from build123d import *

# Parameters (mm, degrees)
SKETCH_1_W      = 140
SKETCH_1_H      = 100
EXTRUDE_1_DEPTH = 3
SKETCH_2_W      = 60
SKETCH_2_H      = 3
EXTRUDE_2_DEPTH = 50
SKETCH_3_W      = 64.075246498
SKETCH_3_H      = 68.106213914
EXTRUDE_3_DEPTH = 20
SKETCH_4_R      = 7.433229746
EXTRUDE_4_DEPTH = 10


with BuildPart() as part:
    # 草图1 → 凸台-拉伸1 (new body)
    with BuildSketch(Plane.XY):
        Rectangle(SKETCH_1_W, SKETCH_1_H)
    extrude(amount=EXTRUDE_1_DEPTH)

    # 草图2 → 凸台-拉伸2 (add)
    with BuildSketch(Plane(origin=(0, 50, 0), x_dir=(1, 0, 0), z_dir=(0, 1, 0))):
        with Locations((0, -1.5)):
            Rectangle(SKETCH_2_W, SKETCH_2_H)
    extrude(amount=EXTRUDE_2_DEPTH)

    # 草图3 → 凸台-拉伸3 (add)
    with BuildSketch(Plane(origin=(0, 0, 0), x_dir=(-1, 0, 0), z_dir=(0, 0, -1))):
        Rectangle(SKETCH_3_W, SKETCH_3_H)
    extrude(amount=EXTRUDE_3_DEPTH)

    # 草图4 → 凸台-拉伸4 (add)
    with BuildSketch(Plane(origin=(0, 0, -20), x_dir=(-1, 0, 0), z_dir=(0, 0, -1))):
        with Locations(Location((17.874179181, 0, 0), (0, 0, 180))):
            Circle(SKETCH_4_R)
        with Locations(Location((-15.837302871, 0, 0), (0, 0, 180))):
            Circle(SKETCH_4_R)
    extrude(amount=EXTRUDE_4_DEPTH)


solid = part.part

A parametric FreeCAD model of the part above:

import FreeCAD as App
import Part
import Sketcher
Q = App.Units.Quantity

doc = App.newDocument("Part")
params = doc.addObject("Spreadsheet::Sheet", "Params")
for row, (alias, value) in enumerate([
    ("sketch1_width", "140 mm"),
    ("sketch1_height", "100 mm"),
    ("pad1_length", "3 mm"),
    ("sketch2_width", "60 mm"),
    ("sketch2_height", "3 mm"),
    ("pad2_length", "50 mm"),
    ("pad3_length", "20 mm"),
    ("pad4_length", "10 mm"),
], start=1):
    params.set(f"A{row}", alias)
    params.set(f"B{row}", "=" + value)
    params.setAlias(f"B{row}", alias)

body = doc.addObject("PartDesign::Body", "Body")

sketch1 = body.newObject("Sketcher::SketchObject", "Sketch")
sketch1.AttachmentSupport = (doc.getObject("XY_Plane"), [""])
sketch1.MapMode = "FlatFace"
sketch1.addGeometry(Part.LineSegment(App.Vector(-70, 50, 0), App.Vector(-70, -50, 0)), False)
sketch1.addGeometry(Part.LineSegment(App.Vector(-70, -50, 0), App.Vector(70, -50, 0)), False)
sketch1.addGeometry(Part.LineSegment(App.Vector(70, -50, 0), App.Vector(70, 50, 0)), False)
sketch1.addGeometry(Part.LineSegment(App.Vector(70, 50, 0), App.Vector(-70, 50, 0)), False)
sketch1.addConstraint(Sketcher.Constraint("Coincident", 0, 2, 1, 1))
sketch1.addConstraint(Sketcher.Constraint("Coincident", 1, 2, 2, 1))
sketch1.addConstraint(Sketcher.Constraint("Coincident", 2, 2, 3, 1))
sketch1.addConstraint(Sketcher.Constraint("Coincident", 3, 2, 0, 1))
sketch1.addConstraint(Sketcher.Constraint("Vertical", 0))
sketch1.addConstraint(Sketcher.Constraint("Horizontal", 1))
sketch1.addConstraint(Sketcher.Constraint("Vertical", 2))
sketch1.addConstraint(Sketcher.Constraint("Horizontal", 3))
sketch1.addConstraint(Sketcher.Constraint("Symmetric", 0, 2, 2, 2, -1, 1))
sketch1.addConstraint(Sketcher.Constraint("DistanceX", 1, 1, 1, 2, Q("140 mm")))
sketch1.addConstraint(Sketcher.Constraint("DistanceY", 0, 2, 0, 1, Q("100 mm")))
sketch1.setExpression("Constraints[9]", "Params.sketch1_width")
sketch1.setExpression("Constraints[10]", "Params.sketch1_height")
pad1 = body.newObject("PartDesign::Pad", "Pad")
pad1.Profile = sketch1
pad1.setExpression("Length", "Params.pad1_length")

sketch2 = body.newObject("Sketcher::SketchObject", "Sketch001")
sketch2.AttachmentSupport = (doc.getObject("XZ_Plane"), [""])
sketch2.MapMode = "FlatFace"
sketch2.AttachmentOffset = App.Placement(App.Vector(0, 0, -50), App.Rotation())
sketch2.addGeometry(Part.LineSegment(App.Vector(-30, 0, 0), App.Vector(-30, 3, 0)), False)
sketch2.addGeometry(Part.LineSegment(App.Vector(-30, 3, 0), App.Vector(30, 3, 0)), False)
sketch2.addGeometry(Part.LineSegment(App.Vector(30, 3, 0), App.Vector(30, 0, 0)), False)
sketch2.addGeometry(Part.LineSegment(App.Vector(30, 0, 0), App.Vector(-30, 0, 0)), False)
sketch2.addConstraint(Sketcher.Constraint("Coincident", 0, 2, 1, 1))
sketch2.addConstraint(Sketcher.Constraint("Coincident", 1, 2, 2, 1))
sketch2.addConstraint(Sketcher.Constraint("Coincident", 2, 2, 3, 1))
sketch2.addConstraint(Sketcher.Constraint("Coincident", 3, 2, 0, 1))
sketch2.addConstraint(Sketcher.Constraint("Vertical", 0))
sketch2.addConstraint(Sketcher.Constraint("Horizontal", 1))
sketch2.addConstraint(Sketcher.Constraint("Vertical", 2))
sketch2.addConstraint(Sketcher.Constraint("Horizontal", 3))
sketch2.addConstraint(Sketcher.Constraint("Symmetric", 2, 2, 3, 2, -1, 1))
sketch2.addConstraint(Sketcher.Constraint("DistanceX", 1, 1, 1, 2, Q("60 mm")))
sketch2.addConstraint(Sketcher.Constraint("DistanceY", 0, 1, 0, 2, Q("3 mm")))
sketch2.setExpression("Constraints[9]", "Params.sketch2_width")
sketch2.setExpression("Constraints[10]", "Params.sketch2_height")
pad2 = body.newObject("PartDesign::Pad", "Pad001")
pad2.Profile = sketch2
pad2.setExpression("Length", "Params.pad2_length")
pad2.Reversed = True

sketch3 = body.newObject("Sketcher::SketchObject", "Sketch002")
sketch3.AttachmentSupport = (doc.getObject("XY_Plane"), [""])
sketch3.MapMode = "FlatFace"
sketch3.addGeometry(Part.LineSegment(App.Vector(32.037623, 34.053107, 0), App.Vector(32.037623, -34.053107, 0)), False)
sketch3.addGeometry(Part.LineSegment(App.Vector(32.037623, -34.053107, 0), App.Vector(-32.037623, -34.053107, 0)), False)
sketch3.addGeometry(Part.LineSegment(App.Vector(-32.037623, -34.053107, 0), App.Vector(-32.037623, 34.053107, 0)), False)
sketch3.addGeometry(Part.LineSegment(App.Vector(-32.037623, 34.053107, 0), App.Vector(32.037623, 34.053107, 0)), False)
sketch3.addConstraint(Sketcher.Constraint("Coincident", 0, 2, 1, 1))
sketch3.addConstraint(Sketcher.Constraint("Coincident", 1, 2, 2, 1))
sketch3.addConstraint(Sketcher.Constraint("Coincident", 2, 2, 3, 1))
sketch3.addConstraint(Sketcher.Constraint("Coincident", 3, 2, 0, 1))
sketch3.addConstraint(Sketcher.Constraint("Vertical", 0))
sketch3.addConstraint(Sketcher.Constraint("Horizontal", 1))
sketch3.addConstraint(Sketcher.Constraint("Vertical", 2))
sketch3.addConstraint(Sketcher.Constraint("Horizontal", 3))
sketch3.addConstraint(Sketcher.Constraint("Symmetric", 0, 2, 2, 2, -1, 1))
sketch3.addConstraint(Sketcher.Constraint("DistanceX", 1, 2, 1, 1, Q("64.075246 mm")))
sketch3.addConstraint(Sketcher.Constraint("DistanceY", 0, 2, 0, 1, Q("68.106214 mm")))
pad3 = body.newObject("PartDesign::Pad", "Pad002")
pad3.Profile = sketch3
pad3.setExpression("Length", "Params.pad3_length")
pad3.Reversed = True

sketch4 = body.newObject("Sketcher::SketchObject", "Sketch003")
sketch4.AttachmentSupport = (doc.getObject("XY_Plane"), [""])
sketch4.MapMode = "FlatFace"
sketch4.AttachmentOffset = App.Placement(App.Vector(0, 0, -20), App.Rotation())
sketch4.addGeometry(Part.Circle(App.Vector(-17.874179, 0, 0), App.Vector(0, 0, 1), 7.43323), False)
sketch4.addGeometry(Part.Circle(App.Vector(15.837303, 0, 0), App.Vector(0, 0, 1), 7.43323), False)
sketch4.addConstraint(Sketcher.Constraint("Equal", 0, 1))
sketch4.addConstraint(Sketcher.Constraint("PointOnObject", 0, 3, -1))
sketch4.addConstraint(Sketcher.Constraint("PointOnObject", 1, 3, -1))
sketch4.addConstraint(Sketcher.Constraint("Diameter", 0, Q("14.866459 mm")))
sketch4.addConstraint(Sketcher.Constraint("DistanceX", 0, 3, -1, 1, Q("17.874179 mm")))
sketch4.addConstraint(Sketcher.Constraint("DistanceX", -1, 1, 1, 3, Q("15.837303 mm")))
pad4 = body.newObject("PartDesign::Pad", "Pad003")
pad4.Profile = sketch4
pad4.setExpression("Length", "Params.pad4_length")
pad4.Reversed = True

doc.recompute()
